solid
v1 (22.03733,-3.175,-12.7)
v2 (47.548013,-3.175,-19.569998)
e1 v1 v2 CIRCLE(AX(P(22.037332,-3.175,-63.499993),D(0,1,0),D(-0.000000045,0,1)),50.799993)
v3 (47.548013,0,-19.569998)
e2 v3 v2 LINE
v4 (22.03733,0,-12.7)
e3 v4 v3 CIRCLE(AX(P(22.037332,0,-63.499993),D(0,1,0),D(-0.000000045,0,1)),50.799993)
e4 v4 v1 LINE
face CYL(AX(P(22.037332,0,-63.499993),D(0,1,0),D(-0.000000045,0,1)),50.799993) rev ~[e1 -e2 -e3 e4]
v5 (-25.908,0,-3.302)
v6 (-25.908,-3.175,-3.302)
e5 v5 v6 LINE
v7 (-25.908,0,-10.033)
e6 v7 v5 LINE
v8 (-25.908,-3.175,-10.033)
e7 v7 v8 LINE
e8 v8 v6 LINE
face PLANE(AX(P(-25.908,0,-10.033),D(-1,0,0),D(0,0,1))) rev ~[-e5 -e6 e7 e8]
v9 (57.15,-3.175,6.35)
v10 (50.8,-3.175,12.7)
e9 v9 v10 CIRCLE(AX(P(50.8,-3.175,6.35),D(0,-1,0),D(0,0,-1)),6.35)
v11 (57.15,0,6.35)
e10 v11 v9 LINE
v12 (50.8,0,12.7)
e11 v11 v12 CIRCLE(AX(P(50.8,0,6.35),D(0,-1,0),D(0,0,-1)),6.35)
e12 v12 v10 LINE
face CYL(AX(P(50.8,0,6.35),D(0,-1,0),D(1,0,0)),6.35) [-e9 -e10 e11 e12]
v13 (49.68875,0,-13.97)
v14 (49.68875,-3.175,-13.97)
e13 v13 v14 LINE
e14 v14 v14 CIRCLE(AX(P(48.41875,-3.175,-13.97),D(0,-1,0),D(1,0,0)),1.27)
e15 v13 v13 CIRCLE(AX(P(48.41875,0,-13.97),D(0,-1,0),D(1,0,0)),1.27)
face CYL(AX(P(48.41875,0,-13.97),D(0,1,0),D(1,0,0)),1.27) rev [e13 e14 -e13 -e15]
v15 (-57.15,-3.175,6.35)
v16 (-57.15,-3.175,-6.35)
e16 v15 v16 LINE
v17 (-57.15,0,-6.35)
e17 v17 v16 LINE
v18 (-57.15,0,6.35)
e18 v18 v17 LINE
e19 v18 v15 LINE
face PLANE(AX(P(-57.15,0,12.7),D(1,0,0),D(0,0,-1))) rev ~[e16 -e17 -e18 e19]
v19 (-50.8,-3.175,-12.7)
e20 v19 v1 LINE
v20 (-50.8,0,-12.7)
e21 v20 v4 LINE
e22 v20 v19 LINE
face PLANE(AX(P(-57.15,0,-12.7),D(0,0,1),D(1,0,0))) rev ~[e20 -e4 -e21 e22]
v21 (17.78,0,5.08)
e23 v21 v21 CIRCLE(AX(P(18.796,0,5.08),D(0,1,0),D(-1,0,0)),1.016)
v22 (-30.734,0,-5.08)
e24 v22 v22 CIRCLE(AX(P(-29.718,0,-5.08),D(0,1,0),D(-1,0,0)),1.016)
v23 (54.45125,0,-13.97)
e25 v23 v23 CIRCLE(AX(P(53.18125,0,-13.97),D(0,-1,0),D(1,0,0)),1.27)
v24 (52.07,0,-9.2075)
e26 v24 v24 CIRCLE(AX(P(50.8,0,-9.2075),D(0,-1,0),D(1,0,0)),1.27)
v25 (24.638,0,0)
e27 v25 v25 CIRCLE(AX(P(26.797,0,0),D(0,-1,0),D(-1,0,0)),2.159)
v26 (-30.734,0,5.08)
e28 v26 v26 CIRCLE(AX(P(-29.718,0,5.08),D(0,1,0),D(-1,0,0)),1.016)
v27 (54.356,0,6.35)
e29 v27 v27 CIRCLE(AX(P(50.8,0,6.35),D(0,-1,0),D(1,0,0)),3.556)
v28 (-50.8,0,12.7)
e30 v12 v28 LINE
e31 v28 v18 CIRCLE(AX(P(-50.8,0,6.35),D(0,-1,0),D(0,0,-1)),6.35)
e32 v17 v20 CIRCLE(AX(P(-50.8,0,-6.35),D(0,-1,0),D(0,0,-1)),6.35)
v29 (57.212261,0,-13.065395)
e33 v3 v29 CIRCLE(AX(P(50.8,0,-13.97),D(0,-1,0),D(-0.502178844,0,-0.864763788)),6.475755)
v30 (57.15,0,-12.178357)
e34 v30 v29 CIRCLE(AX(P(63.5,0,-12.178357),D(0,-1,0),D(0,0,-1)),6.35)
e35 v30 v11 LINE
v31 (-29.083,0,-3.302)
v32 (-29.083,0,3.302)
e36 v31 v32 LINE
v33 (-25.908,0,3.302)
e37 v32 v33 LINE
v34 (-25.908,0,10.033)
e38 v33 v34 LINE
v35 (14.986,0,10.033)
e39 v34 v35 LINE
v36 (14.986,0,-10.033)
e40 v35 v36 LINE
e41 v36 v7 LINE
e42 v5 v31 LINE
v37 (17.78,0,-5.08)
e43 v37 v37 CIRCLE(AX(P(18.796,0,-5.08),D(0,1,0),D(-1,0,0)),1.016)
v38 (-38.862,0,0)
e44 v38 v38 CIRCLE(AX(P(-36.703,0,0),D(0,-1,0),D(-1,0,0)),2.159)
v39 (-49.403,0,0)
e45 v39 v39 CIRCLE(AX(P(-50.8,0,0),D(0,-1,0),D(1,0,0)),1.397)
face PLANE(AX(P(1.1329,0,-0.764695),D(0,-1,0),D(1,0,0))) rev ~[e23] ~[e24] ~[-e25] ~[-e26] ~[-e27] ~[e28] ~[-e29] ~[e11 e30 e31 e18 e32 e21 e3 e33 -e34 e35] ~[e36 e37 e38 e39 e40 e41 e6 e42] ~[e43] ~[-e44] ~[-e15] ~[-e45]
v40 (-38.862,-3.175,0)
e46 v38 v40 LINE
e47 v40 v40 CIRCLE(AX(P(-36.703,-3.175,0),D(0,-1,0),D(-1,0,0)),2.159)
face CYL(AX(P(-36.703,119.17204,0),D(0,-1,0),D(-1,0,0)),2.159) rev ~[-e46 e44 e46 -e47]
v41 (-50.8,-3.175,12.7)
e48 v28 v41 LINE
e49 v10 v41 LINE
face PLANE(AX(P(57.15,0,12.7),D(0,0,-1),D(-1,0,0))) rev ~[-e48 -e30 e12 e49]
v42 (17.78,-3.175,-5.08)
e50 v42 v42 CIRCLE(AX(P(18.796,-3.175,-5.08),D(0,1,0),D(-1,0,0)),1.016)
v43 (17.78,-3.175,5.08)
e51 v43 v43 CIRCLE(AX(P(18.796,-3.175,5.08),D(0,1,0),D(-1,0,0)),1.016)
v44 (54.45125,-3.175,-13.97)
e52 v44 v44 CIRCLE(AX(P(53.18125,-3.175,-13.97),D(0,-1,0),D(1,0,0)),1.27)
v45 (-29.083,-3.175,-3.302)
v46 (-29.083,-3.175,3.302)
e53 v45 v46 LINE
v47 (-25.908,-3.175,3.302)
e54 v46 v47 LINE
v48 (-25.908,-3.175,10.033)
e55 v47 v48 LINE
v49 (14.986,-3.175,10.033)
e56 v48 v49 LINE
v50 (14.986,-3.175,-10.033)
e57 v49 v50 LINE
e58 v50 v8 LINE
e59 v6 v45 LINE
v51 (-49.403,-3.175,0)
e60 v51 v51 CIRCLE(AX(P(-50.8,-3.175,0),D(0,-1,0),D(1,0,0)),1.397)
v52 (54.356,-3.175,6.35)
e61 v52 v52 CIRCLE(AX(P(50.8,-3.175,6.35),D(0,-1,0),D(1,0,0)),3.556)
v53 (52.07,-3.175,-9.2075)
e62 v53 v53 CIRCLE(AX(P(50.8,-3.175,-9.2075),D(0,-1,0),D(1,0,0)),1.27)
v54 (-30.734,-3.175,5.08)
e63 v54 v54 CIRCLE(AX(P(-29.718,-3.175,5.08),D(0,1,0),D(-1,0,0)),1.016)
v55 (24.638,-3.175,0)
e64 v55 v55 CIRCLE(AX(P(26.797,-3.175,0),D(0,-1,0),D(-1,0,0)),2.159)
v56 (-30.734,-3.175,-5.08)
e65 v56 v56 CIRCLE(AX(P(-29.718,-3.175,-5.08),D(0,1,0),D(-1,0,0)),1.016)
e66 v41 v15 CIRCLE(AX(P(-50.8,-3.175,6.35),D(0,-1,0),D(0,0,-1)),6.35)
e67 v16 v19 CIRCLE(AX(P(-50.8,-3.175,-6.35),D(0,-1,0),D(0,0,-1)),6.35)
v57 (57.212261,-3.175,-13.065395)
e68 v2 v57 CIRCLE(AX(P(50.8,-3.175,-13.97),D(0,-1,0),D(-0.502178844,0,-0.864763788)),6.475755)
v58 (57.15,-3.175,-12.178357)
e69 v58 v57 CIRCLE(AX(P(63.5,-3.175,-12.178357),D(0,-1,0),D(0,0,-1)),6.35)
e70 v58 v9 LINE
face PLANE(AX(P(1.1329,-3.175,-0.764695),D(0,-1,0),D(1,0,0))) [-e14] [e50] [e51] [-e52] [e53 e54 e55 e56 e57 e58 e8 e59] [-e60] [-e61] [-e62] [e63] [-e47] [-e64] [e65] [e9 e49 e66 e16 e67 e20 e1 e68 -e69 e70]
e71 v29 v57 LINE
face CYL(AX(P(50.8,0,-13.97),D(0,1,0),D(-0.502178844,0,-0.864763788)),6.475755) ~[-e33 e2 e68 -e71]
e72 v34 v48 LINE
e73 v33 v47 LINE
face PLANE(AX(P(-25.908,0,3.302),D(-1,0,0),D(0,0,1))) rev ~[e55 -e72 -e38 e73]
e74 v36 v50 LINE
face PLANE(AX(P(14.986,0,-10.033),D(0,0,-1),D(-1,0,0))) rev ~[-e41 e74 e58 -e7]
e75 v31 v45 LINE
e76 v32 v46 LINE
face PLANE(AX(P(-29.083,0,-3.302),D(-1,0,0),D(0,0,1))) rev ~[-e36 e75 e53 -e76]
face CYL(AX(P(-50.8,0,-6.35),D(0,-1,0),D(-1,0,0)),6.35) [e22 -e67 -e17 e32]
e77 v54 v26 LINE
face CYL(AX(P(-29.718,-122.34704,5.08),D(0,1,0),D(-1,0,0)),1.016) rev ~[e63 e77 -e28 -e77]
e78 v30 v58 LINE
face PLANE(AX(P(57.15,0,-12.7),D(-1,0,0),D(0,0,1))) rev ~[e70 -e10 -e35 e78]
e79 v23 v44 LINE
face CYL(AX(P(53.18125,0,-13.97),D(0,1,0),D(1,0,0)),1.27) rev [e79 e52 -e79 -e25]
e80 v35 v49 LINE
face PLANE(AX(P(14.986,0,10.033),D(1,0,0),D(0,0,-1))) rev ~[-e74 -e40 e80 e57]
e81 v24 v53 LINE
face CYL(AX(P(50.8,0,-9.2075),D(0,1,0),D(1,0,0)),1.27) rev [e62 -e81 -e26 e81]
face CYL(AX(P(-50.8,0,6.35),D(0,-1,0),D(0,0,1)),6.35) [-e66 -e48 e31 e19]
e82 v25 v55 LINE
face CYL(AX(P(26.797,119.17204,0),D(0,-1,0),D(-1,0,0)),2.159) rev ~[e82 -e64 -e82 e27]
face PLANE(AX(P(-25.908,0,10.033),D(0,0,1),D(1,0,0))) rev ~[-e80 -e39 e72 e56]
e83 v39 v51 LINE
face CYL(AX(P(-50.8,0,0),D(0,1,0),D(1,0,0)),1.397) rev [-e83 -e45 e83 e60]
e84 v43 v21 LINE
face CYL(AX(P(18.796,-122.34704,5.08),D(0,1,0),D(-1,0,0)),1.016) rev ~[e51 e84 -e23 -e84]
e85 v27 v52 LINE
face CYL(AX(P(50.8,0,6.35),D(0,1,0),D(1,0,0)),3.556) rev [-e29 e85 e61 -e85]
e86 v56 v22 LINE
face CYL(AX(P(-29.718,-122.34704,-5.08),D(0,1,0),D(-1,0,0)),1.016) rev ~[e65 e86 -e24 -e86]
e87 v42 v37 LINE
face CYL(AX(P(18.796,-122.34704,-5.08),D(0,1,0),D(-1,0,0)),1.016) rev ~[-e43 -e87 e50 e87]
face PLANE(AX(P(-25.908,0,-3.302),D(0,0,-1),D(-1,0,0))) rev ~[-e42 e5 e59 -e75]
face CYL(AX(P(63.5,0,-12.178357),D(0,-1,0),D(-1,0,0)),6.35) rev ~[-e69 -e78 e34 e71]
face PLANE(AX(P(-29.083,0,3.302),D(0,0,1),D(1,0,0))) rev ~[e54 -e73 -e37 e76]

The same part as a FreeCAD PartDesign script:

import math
import FreeCAD as App
import Part
import Sketcher

V = App.Vector
Q = App.Units.Quantity


def edges_at(feature, points):
    """Names of the edges that pass closest to the given points."""
    edges = feature.Shape.Edges
    near = lambda p: min(range(len(edges)), key=lambda i: edges[i].distToShape(Part.Vertex(*p))[0])
    return sorted({f"Edge{near(p) + 1}" for p in points})


def add_polygon(sketch, points):
    """Adds a closed chain of lines whose ends are joined by coincident constraints."""
    first, n = sketch.GeometryCount, len(points)
    for a, b in zip(points, points[1:] + points[:1]):
        sketch.addGeometry(Part.LineSegment(App.Vector(*a, 0), App.Vector(*b, 0)), False)
    for i in range(n):
        sketch.addConstraint(Sketcher.Constraint("Coincident", first + i, 2, first + (i + 1) % n, 1))

doc = App.newDocument("Part")
body = doc.addObject("PartDesign::Body", "Body")

sketch1 = body.newObject("Sketcher::SketchObject", "Sketch")
sketch1.AttachmentSupport = (doc.getObject("XZ_Plane"), [""])
sketch1.MapMode = "FlatFace"
sketch1.addGeometry(Part.LineSegment(V(57.15, -12.7, 0), V(57.15, 12.7, 0)), False)
sketch1.addGeometry(Part.LineSegment(V(57.15, 12.7, 0), V(-57.15, 12.7, 0)), False)
sketch1.addGeometry(Part.LineSegment(V(-57.15, 12.7, 0), V(-57.15, -12.7, 0)), False)
sketch1.addGeometry(Part.LineSegment(V(-57.15, -12.7, 0), V(22.03733, -12.7, 0)), False)
sketch1.addGeometry(Part.ArcOfCircle(Part.Circle(V(22.037332, -63.499993, 0), V(0, 0, 1), 50.799993), math.radians(59.855745), math.radians(90.000003)), False)
sketch1.addGeometry(Part.ArcOfCircle(Part.Circle(V(50.8, -13.97, 0), V(0, 0, 1), 6.475755), math.radians(-120.144256), math.radians(11.309931)), False)
sketch1.addGeometry(Part.Circle(V(48.41875, -13.97, 0), V(0, 0, 1), 1.27), False)
sketch1.addGeometry(Part.Circle(V(53.18125, -13.97, 0), V(0, 0, 1), 1.27), False)
sketch1.addGeometry(Part.Circle(V(50.8, -9.2075, 0), V(0, 0, 1), 1.27), False)
sketch1.addGeometry(Part.Circle(V(-50.8, 0, 0), V(0, 0, 1), 1.397), False)
add_polygon(sketch1, [(-25.908, 3.302), (-25.908, 10.033), (14.986, 10.033), (14.986, -10.033), (-25.908, -10.033), (-25.908, -3.302), (-29.083, -3.302), (-29.083, 3.302)])
sketch1.addGeometry(Part.Circle(V(50.8, 6.35, 0), V(0, 0, 1), 3.556), False)
sketch1.addConstraint([
    Sketcher.Constraint("Coincident", 0, 2, 1, 1),
    Sketcher.Constraint("Coincident", 1, 2, 2, 1),
    Sketcher.Constraint("Coincident", 2, 2, 3, 1),
    Sketcher.Constraint("Tangent", 3, 2, 4, 2),
    Sketcher.Constraint("Tangent", 4, 1, 5, 1),
    Sketcher.Constraint("Coincident", 5, 2, 0, 1),
    Sketcher.Constraint("Vertical", 0),
    Sketcher.Constraint("Horizontal", 1),
    Sketcher.Constraint("Vertical", 2),
    Sketcher.Constraint("Horizontal", 3),
    Sketcher.Constraint("Vertical", 10),
    Sketcher.Constraint("Horizontal", 11),
    Sketcher.Constraint("Vertical", 12),
    Sketcher.Constraint("Horizontal", 13),
    Sketcher.Constraint("Vertical", 14),
    Sketcher.Constraint("Horizontal", 15),
    Sketcher.Constraint("Vertical", 16),
    Sketcher.Constraint("Horizontal", 17),
    Sketcher.Constraint("Equal", 6, 7),
    Sketcher.Constraint("Equal", 7, 8),
    Sketcher.Constraint("Symmetric", 0, 2, 2, 2, -1, 1),
    Sketcher.Constraint("Symmetric", 10, 2, 13, 2, -1),
    Sketcher.Constraint("PointOnObject", 9, 3, -1),
    Sketcher.Constraint("Horizontal", 5, 3, 6, 3),
    Sketcher.Constraint("Horizontal", 6, 3, 7, 3),
    Sketcher.Constraint("Horizontal", 3, 2, 5, 2),
    Sketcher.Constraint("Vertical", 5, 3, 8, 3),
    Sketcher.Constraint("Vertical", 8, 3, 18, 3),
    Sketcher.Constraint("Equal", 10, 14),
    Sketcher.Constraint("Diameter", 6, Q("0.1 in")),
    Sketcher.Constraint("Diameter", 9, Q("0.11 in")),
    Sketcher.Constraint("Diameter", 18, Q("0.28 in")),
    Sketcher.Constraint("DistanceY", 0, 1, 0, 2, Q("1 in")),
    Sketcher.Constraint("DistanceX", 1, 2, 1, 1, Q("4.5 in")),
    Sketcher.Constraint("DistanceX", -1, 1, 5, 3, Q("2 in")),
    Sketcher.Constraint("DistanceX", 9, 3, -1, 1, Q("2 in")),
    Sketcher.Constraint("DistanceX", 11, 1, 11, 2, Q("1.61 in")),
    Sketcher.Constraint("DistanceY", 12, 2, 12, 1, Q("0.79 in")),
    Sketcher.Constraint("DistanceY", 16, 1, 16, 2, Q("0.26 in")),
    Sketcher.Constraint("DistanceY", 5, 3, 18, 3, Q("0.8 in")),
    Sketcher.Constraint("DistanceX", 15, 2, 15, 1, Q("0.125 in")),
    Sketcher.Constraint("DistanceY", 5, 3, -1, 1, Q("0.55 in")),
    Sketcher.Constraint("DistanceX", 10, 2, -1, 1, Q("1.02 in")),
    Sketcher.Constraint("DistanceX", -1, 1, 6, 3, Q("1.90625 in")),
    Sketcher.Constraint("DistanceX", -1, 1, 7, 3, Q("2.09375 in")),
    Sketcher.Constraint("DistanceY", 5, 3, 8, 3, Q("0.1875 in")),
    Sketcher.Constraint("Radius", 4, 50.799993),
])
pad1 = body.newObject("PartDesign::Pad", "Pad")
pad1.Profile = sketch1
pad1.Length = Q("0.125 in")

sketch2 = body.newObject("Sketcher::SketchObject", "Sketch001")
sketch2.AttachmentSupport = (doc.getObject("XZ_Plane"), [""])
sketch2.MapMode = "FlatFace"
sketch2.AttachmentOffset = App.Placement(V(0, 0, 0.125 * 25.4), App.Rotation())
sketch2.addGeometry([
    Part.Circle(V(-29.718, 5.08, 0), V(0, 0, 1), 1.016),
    Part.Circle(V(18.796, 5.08, 0), V(0, 0, 1), 1.016),
    Part.Circle(V(18.796, -5.08, 0), V(0, 0, 1), 1.016),
    Part.Circle(V(-29.718, -5.08, 0), V(0, 0, 1), 1.016),
], False)
sketch2.addConstraint([
    Sketcher.Constraint("Equal", 0, 1),
    Sketcher.Constraint("Equal", 1, 2),
    Sketcher.Constraint("Equal", 2, 3),
    Sketcher.Constraint("Symmetric", 1, 3, 2, 3, -1),
    Sketcher.Constraint("Symmetric", 0, 3, 3, 3, -1),
    Sketcher.Constraint("Horizontal", 0, 3, 1, 3),
    Sketcher.Constraint("Diameter", 0, Q("0.08 in")),
    Sketcher.Constraint("DistanceY", -1, 1, 0, 3, Q("0.2 in")),
    Sketcher.Constraint("DistanceX", 0, 3, -1, 1, Q("1.17 in")),
    Sketcher.Constraint("DistanceX", -1, 1, 1, 3, Q("0.74 in")),
])
doc.recompute()
hole = body.newObject("PartDesign::Hole", "Hole")
hole.Profile = sketch2
hole.ThreadType = "None"
hole.Diameter = Q("0.08 in")
hole.DepthType = "ThroughAll"

sketch3 = body.newObject("Sketcher::SketchObject", "Sketch002")
sketch3.AttachmentSupport = (doc.getObject("XZ_Plane"), [""])
sketch3.MapMode = "FlatFace"
sketch3.addGeometry([
    Part.Circle(V(-36.703, 0, 0), V(0, 0, 1), 2.159),
    Part.Circle(V(26.797, 0, 0), V(0, 0, 1), 2.159),
], False)
sketch3.addConstraint([
    Sketcher.Constraint("Equal", 0, 1),
    Sketcher.Constraint("PointOnObject", 0, 3, -1),
    Sketcher.Constraint("PointOnObject", 1, 3, -1),
    Sketcher.Constraint("Diameter", 0, Q("0.17 in")),
    Sketcher.Constraint("DistanceX", 0, 3, 1, 3, Q("2.5 in")),
    Sketcher.Constraint("DistanceX", 0, 3, -1, 1, Q("1.445 in")),
])
doc.recompute()
hole2 = body.newObject("PartDesign::Hole", "Hole001")
hole2.Profile = sketch3
hole2.ThreadType = "None"
hole2.Diameter = Q("0.17 in")
hole2.DepthType = "ThroughAll"
hole2.Reversed = True
doc.recompute()

fillet = body.newObject("PartDesign::Fillet", "Fillet")
fillet.Base = (hole2, edges_at(hole2, [
    (-57.15, -1.587, 12.7),
    (-57.15, -1.587, -12.7),
    (57.15, -1.587, 12.7),
    (57.15, -1.587, -12.7),
]))
fillet.Radius = Q("0.25 in")

doc.recompute()
